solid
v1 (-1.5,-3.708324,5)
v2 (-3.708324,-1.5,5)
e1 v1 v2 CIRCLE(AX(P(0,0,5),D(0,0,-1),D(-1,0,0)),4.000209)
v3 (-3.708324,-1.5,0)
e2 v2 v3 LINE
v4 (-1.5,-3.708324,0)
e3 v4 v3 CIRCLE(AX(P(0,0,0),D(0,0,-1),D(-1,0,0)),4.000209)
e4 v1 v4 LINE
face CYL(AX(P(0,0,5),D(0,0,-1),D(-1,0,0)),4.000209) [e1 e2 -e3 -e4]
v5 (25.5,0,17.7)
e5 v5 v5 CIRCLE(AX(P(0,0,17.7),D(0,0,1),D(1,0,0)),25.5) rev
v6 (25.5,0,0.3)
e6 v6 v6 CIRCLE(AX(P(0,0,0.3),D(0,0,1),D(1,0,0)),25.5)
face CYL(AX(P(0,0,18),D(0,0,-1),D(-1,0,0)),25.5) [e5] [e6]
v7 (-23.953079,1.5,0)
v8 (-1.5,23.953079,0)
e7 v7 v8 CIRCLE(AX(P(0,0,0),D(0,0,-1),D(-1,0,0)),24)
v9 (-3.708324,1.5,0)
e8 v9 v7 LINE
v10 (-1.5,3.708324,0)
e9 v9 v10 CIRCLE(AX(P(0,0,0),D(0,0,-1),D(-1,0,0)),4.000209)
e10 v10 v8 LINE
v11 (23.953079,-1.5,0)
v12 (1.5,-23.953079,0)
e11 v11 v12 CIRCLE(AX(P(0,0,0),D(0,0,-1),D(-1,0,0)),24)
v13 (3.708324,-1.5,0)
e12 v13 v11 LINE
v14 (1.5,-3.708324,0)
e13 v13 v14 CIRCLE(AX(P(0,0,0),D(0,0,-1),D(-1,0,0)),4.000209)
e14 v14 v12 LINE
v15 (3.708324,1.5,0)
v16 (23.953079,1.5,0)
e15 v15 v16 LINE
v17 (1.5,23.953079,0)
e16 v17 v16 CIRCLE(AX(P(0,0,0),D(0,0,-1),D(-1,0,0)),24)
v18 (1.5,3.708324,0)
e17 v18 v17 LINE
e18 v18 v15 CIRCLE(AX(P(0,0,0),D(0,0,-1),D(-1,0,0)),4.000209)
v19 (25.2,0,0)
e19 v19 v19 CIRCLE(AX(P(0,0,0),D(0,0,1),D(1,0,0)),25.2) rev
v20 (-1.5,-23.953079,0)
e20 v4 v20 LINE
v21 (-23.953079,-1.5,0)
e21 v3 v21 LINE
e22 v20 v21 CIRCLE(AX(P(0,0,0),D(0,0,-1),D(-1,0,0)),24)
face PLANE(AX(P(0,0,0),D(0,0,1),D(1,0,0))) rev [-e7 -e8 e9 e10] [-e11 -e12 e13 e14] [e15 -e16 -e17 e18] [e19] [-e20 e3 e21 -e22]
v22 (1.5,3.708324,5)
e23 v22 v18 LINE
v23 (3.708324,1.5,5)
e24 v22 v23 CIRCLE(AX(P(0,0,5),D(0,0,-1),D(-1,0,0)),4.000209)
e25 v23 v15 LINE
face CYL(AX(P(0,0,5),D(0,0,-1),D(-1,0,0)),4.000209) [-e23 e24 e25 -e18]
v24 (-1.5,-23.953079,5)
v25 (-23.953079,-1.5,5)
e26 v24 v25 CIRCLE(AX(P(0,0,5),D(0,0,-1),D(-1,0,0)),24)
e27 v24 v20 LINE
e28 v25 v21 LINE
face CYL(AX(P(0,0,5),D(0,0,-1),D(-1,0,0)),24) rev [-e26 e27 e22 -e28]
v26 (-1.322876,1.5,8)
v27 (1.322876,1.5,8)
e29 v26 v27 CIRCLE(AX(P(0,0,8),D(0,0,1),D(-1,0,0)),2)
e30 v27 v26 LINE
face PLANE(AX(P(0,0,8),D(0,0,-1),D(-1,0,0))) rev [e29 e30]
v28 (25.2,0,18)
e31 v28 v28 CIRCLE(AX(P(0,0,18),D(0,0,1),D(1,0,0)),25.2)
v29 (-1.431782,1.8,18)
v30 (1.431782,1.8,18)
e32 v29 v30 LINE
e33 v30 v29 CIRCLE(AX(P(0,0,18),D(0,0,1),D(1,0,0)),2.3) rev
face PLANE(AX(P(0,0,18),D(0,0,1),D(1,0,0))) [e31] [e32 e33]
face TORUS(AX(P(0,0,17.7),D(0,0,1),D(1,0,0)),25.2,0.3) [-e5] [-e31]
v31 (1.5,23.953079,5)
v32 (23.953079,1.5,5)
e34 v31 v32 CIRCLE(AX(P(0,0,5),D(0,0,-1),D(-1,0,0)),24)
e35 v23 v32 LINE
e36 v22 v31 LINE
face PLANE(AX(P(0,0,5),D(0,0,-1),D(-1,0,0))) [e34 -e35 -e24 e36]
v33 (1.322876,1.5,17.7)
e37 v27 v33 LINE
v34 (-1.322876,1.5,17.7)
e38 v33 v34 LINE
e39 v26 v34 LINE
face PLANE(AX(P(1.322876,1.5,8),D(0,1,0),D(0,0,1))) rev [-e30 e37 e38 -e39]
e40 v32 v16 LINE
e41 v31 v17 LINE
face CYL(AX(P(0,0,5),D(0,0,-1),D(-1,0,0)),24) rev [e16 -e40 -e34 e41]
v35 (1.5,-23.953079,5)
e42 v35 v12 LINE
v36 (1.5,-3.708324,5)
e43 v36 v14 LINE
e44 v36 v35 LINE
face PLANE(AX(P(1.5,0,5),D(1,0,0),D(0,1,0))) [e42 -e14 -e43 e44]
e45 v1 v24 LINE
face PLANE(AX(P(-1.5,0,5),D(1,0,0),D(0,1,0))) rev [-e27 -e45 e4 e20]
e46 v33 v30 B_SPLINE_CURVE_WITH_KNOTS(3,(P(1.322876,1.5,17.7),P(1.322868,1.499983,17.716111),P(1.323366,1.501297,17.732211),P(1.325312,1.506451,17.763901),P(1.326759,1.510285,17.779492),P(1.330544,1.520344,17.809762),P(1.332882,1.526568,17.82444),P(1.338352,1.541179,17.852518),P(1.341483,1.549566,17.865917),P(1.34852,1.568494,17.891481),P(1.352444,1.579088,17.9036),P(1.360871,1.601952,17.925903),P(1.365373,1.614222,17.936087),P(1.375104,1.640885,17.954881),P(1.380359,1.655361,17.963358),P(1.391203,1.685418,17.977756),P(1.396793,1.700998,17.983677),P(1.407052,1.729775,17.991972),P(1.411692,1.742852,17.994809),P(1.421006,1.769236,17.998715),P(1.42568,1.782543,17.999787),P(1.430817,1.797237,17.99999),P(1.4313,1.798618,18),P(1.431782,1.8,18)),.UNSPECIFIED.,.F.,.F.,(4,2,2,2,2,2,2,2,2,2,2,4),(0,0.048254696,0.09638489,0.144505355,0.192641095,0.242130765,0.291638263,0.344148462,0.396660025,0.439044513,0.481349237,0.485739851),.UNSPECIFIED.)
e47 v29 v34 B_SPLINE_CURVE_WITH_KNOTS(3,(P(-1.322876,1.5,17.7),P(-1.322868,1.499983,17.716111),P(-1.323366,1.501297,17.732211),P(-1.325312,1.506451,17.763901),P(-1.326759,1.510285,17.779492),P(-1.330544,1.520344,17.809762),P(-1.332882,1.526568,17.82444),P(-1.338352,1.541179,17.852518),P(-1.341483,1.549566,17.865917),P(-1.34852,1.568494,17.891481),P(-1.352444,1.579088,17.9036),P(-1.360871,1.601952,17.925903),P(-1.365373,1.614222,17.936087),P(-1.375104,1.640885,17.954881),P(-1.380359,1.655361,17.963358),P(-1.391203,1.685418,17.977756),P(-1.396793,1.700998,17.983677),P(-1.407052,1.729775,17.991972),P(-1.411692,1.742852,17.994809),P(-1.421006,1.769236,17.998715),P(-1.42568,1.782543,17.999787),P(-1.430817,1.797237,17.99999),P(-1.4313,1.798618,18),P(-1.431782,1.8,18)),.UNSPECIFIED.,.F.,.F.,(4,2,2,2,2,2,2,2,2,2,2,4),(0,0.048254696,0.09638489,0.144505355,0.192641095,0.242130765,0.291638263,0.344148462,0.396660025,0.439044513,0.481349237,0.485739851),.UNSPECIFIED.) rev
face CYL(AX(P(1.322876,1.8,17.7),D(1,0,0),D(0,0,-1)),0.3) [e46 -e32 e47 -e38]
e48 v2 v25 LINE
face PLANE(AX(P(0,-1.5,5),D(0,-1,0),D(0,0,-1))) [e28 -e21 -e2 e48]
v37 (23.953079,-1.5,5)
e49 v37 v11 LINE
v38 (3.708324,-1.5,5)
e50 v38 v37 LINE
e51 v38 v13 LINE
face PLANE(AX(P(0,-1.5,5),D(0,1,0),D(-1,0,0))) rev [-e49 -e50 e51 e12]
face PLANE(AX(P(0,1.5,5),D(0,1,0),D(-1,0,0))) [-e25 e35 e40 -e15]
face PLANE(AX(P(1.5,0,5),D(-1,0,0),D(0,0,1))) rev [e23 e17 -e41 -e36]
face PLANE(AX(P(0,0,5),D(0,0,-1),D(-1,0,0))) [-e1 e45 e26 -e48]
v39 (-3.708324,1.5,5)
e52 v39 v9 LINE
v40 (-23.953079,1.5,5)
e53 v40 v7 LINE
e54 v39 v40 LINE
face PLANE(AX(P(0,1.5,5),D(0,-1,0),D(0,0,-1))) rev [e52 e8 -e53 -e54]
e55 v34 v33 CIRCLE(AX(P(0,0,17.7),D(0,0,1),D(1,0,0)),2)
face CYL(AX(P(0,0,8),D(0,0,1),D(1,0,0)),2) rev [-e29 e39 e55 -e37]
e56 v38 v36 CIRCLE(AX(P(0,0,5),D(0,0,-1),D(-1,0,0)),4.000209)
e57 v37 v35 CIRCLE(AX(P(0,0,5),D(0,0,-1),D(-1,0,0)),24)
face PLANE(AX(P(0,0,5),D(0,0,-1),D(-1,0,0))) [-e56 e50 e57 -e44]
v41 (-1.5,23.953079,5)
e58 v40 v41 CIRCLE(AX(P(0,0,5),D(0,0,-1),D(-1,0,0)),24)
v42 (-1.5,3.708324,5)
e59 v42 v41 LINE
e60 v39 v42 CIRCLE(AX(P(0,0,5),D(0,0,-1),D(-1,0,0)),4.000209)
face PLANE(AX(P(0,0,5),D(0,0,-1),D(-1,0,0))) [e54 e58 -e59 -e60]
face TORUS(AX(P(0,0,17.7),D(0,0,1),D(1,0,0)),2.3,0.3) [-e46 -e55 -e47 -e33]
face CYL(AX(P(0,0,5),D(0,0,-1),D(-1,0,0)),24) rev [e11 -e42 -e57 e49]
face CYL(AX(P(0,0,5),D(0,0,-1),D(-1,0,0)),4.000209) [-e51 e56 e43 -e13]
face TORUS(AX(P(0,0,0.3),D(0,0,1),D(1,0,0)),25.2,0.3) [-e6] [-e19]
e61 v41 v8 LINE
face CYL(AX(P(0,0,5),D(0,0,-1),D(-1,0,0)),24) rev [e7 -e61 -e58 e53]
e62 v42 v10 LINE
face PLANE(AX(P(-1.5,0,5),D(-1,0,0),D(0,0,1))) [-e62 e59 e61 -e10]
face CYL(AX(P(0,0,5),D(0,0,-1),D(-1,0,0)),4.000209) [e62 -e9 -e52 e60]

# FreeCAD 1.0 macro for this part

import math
import FreeCAD as App
import Part
import Sketcher
Q = App.Units.Quantity


def edges_at(feature, points):
    """Names of the edges that pass closest to the given points."""
    edges = feature.Shape.Edges
    near = lambda p: min(range(len(edges)), key=lambda i: edges[i].distToShape(Part.Vertex(*p))[0])
    return sorted({f"Edge{near(p) + 1}" for p in points})

doc = App.newDocument("Part")
params = doc.addObject("Spreadsheet::Sheet", "Params")
for row, (alias, value) in enumerate([
    ("sketch1_diameter", "51 mm"),
    ("pad1_length", "18 mm"),
    ("sketch2_radius", "2 mm"),
    ("pocket1_length", "10 mm"),
    ("sketch3_radius", "24 mm"),
    ("pocket2_length", "5 mm"),
    ("fillet_radius", "0.3 mm"),
], start=1):
    params.set(f"A{row}", alias)
    params.set(f"B{row}", "=" + value)
    params.setAlias(f"B{row}", alias)

body = doc.addObject("PartDesign::Body", "Body")

# Sketch on XY plane
sketch1 = body.newObject("Sketcher::SketchObject", "Sketch")
sketch1.AttachmentSupport = (doc.getObject("XY_Plane"), [""])
sketch1.MapMode = "FlatFace"
sketch1.addGeometry(Part.Circle(App.Vector(0, 0, 0), App.Vector(0, 0, 1), 26), False)
sketch1.addConstraint([
    Sketcher.Constraint("Coincident", 0, 3, -1, 1),
    Sketcher.Constraint("Diameter", 0, Q("51 mm")),
])
sketch1.setExpression("Constraints[1]", "Params.sketch1_diameter")
pad1 = body.newObject("PartDesign::Pad", "Pad")
pad1.Profile = sketch1
pad1.setExpression("Length", "Params.pad1_length")

# Sketch on XY plane
sketch2 = body.newObject("Sketcher::SketchObject", "Sketch001")
sketch2.AttachmentSupport = (doc.getObject("XY_Plane"), [""])
sketch2.MapMode = "FlatFace"
sketch2.AttachmentOffset = App.Placement(App.Vector(0, 0, 18), App.Rotation())
sketch2.addGeometry([
    Part.LineSegment(App.Vector(1.3, 1.5, 0), App.Vector(-1.3, 1.5, 0)),
    Part.ArcOfCircle(Part.Circle(App.Vector(0, 0, 0), App.Vector(0, 0, 1), 2), math.radians(131), math.radians(409)),
], False)
sketch2.addConstraint([
    Sketcher.Constraint("Coincident", 0, 1, 1, 2),
    Sketcher.Constraint("Coincident", 1, 1, 0, 2),
    Sketcher.Constraint("Horizontal", 0),
    Sketcher.Constraint("Coincident", 1, 3, -1, 1),
    Sketcher.Constraint("Radius", 1, Q("2 mm")),
    Sketcher.Constraint("DistanceY", -1, 1, 0, 1, Q("1.5 mm")),
])
sketch2.setExpression("Constraints[4]", "Params.sketch2_radius")
pocket1 = body.newObject("PartDesign::Pocket", "Pocket")
pocket1.Profile = sketch2
pocket1.setExpression("Length", "Params.pocket1_length")

# Sketch on XY plane
sketch3 = body.newObject("Sketcher::SketchObject", "Sketch002")
sketch3.AttachmentSupport = (doc.getObject("XY_Plane"), [""])
sketch3.MapMode = "FlatFace"
sketch3.addGeometry([
    Part.ArcOfCircle(Part.Circle(App.Vector(0, 0, 0), App.Vector(0, 0, 1), 4), math.radians(112), math.radians(158)),  # 0
    Part.LineSegment(App.Vector(-3.7, 1.5, 0), App.Vector(-24, 1.5, 0)),  # 1
    Part.ArcOfCircle(Part.Circle(App.Vector(0, 0, 0), App.Vector(0, 0, 1), 24), math.radians(94), math.radians(176)),  # 2
    Part.LineSegment(App.Vector(-1.5, 24, 0), App.Vector(-1.5, 3.7, 0)),  # 3
    Part.LineSegment(App.Vector(24, 1.5, 0), App.Vector(3.7, 1.5, 0)),  # 4
    Part.ArcOfCircle(Part.Circle(App.Vector(0, 0, 0), App.Vector(0, 0, 1), 4), math.radians(22), math.radians(68)),  # 5
    Part.LineSegment(App.Vector(1.5, 3.7, 0), App.Vector(1.5, 24, 0)),  # 6
    Part.ArcOfCircle(Part.Circle(App.Vector(0, 0, 0), App.Vector(0, 0, 1), 24), math.radians(4), math.radians(86)),  # 7
    Part.LineSegment(App.Vector(1.5, -24, 0), App.Vector(1.5, -3.7, 0)),  # 8
    Part.ArcOfCircle(Part.Circle(App.Vector(0, 0, 0), App.Vector(0, 0, 1), 4), math.radians(-68), math.radians(-22)),  # 9
    Part.LineSegment(App.Vector(3.7, -1.5, 0), App.Vector(24, -1.5, 0)),  # 10
    Part.ArcOfCircle(Part.Circle(App.Vector(0, 0, 0), App.Vector(0, 0, 1), 24), math.radians(-86), math.radians(-4)),  # 11
    Part.ArcOfCircle(Part.Circle(App.Vector(0, 0, 0), App.Vector(0, 0, 1), 4), math.radians(-158), math.radians(-112)),  # 12
    Part.LineSegment(App.Vector(-1.5, -3.7, 0), App.Vector(-1.5, -24, 0)),  # 13
    Part.ArcOfCircle(Part.Circle(App.Vector(0, 0, 0), App.Vector(0, 0, 1), 24), math.radians(-176), math.radians(-94)),  # 14
    Part.LineSegment(App.Vector(-24, -1.5, 0), App.Vector(-3.7, -1.5, 0)),  # 15
], False)
sketch3.addConstraint([
    Sketcher.Constraint("Coincident", 0, 2, 1, 1),
    Sketcher.Constraint("Coincident", 1, 2, 2, 2),
    Sketcher.Constraint("Coincident", 2, 1, 3, 1),
    Sketcher.Constraint("Coincident", 3, 2, 0, 1),
    Sketcher.Constraint("Coincident", 4, 2, 5, 1),
    Sketcher.Constraint("Coincident", 5, 2, 6, 1),
    Sketcher.Constraint("Coincident", 6, 2, 7, 2),
    Sketcher.Constraint("Coincident", 7, 1, 4, 1),
    Sketcher.Constraint("Coincident", 8, 2, 9, 1),
    Sketcher.Constraint("Coincident", 9, 2, 10, 1),
    Sketcher.Constraint("Coincident", 10, 2, 11, 2),
    Sketcher.Constraint("Coincident", 11, 1, 8, 1),
    Sketcher.Constraint("Coincident", 12, 2, 13, 1),
    Sketcher.Constraint("Coincident", 13, 2, 14, 2),
    Sketcher.Constraint("Coincident", 14, 1, 15, 1),
    Sketcher.Constraint("Coincident", 15, 2, 12, 1),
    Sketcher.Constraint("Horizontal", 1),
    Sketcher.Constraint("Vertical", 3),
    Sketcher.Constraint("Horizontal", 4),
    Sketcher.Constraint("Vertical", 6),
    Sketcher.Constraint("Vertical", 8),
    Sketcher.Constraint("Horizontal", 10),
    Sketcher.Constraint("Vertical", 13),
    Sketcher.Constraint("Horizontal", 15),
    Sketcher.Constraint("Coincident", 0, 3, -1, 1),
    Sketcher.Constraint("Coincident", 2, 3, -1, 1),
    Sketcher.Constraint("Coincident", 5, 3, -1, 1),
    Sketcher.Constraint("Coincident", 7, 3, -1, 1),
    Sketcher.Constraint("Coincident", 9, 3, -1, 1),
    Sketcher.Constraint("Coincident", 11, 3, -1, 1),
    Sketcher.Constraint("Coincident", 12, 3, -1, 1),
    Sketcher.Constraint("Coincident", 14, 3, -1, 1),
    Sketcher.Constraint("Equal", 0, 5),
    Sketcher.Constraint("Equal", 2, 7),
    Sketcher.Constraint("Equal", 5, 9),
    Sketcher.Constraint("Equal", 7, 11),
    Sketcher.Constraint("Equal", 9, 12),
    Sketcher.Constraint("Equal", 11, 14),
    Sketcher.Constraint("Horizontal", 1, 2, 4, 2),
    Sketcher.Constraint("Horizontal", 3, 2, 5, 2),
    Sketcher.Constraint("Horizontal", 8, 2, 12, 2),
    Sketcher.Constraint("Horizontal", 10, 2, 14, 1),
    Sketcher.Constraint("Vertical", 6, 2, 8, 2),
    Sketcher.Constraint("Vertical", 4, 2, 9, 2),
    Sketcher.Constraint("Equal", 15, 3),
    Sketcher.Constraint("Radius", 2, Q("24 mm")),
    Sketcher.Constraint("DistanceX", 3, 2, 5, 2, Q("3 mm")),
    Sketcher.Constraint("Radius", 0, Q("4.000209 mm")),
])
sketch3.setExpression("Constraints[45]", "Params.sketch3_radius")
pocket2 = body.newObject("PartDesign::Pocket", "Pocket001")
pocket2.Profile = sketch3
pocket2.setExpression("Length", "Params.pocket2_length")
pocket2.Reversed = True
doc.recompute()

fillet = body.newObject("PartDesign::Fillet", "Fillet")
fillet.Base = (pocket2, edges_at(pocket2, [
    (-25.5, 0, 0),
    (-25.5, 0, 18),
    (0, -2, 18),
    (0, 1.5, 18),
]))
fillet.setExpression("Radius", "Params.fillet_radius")

doc.recompute()
